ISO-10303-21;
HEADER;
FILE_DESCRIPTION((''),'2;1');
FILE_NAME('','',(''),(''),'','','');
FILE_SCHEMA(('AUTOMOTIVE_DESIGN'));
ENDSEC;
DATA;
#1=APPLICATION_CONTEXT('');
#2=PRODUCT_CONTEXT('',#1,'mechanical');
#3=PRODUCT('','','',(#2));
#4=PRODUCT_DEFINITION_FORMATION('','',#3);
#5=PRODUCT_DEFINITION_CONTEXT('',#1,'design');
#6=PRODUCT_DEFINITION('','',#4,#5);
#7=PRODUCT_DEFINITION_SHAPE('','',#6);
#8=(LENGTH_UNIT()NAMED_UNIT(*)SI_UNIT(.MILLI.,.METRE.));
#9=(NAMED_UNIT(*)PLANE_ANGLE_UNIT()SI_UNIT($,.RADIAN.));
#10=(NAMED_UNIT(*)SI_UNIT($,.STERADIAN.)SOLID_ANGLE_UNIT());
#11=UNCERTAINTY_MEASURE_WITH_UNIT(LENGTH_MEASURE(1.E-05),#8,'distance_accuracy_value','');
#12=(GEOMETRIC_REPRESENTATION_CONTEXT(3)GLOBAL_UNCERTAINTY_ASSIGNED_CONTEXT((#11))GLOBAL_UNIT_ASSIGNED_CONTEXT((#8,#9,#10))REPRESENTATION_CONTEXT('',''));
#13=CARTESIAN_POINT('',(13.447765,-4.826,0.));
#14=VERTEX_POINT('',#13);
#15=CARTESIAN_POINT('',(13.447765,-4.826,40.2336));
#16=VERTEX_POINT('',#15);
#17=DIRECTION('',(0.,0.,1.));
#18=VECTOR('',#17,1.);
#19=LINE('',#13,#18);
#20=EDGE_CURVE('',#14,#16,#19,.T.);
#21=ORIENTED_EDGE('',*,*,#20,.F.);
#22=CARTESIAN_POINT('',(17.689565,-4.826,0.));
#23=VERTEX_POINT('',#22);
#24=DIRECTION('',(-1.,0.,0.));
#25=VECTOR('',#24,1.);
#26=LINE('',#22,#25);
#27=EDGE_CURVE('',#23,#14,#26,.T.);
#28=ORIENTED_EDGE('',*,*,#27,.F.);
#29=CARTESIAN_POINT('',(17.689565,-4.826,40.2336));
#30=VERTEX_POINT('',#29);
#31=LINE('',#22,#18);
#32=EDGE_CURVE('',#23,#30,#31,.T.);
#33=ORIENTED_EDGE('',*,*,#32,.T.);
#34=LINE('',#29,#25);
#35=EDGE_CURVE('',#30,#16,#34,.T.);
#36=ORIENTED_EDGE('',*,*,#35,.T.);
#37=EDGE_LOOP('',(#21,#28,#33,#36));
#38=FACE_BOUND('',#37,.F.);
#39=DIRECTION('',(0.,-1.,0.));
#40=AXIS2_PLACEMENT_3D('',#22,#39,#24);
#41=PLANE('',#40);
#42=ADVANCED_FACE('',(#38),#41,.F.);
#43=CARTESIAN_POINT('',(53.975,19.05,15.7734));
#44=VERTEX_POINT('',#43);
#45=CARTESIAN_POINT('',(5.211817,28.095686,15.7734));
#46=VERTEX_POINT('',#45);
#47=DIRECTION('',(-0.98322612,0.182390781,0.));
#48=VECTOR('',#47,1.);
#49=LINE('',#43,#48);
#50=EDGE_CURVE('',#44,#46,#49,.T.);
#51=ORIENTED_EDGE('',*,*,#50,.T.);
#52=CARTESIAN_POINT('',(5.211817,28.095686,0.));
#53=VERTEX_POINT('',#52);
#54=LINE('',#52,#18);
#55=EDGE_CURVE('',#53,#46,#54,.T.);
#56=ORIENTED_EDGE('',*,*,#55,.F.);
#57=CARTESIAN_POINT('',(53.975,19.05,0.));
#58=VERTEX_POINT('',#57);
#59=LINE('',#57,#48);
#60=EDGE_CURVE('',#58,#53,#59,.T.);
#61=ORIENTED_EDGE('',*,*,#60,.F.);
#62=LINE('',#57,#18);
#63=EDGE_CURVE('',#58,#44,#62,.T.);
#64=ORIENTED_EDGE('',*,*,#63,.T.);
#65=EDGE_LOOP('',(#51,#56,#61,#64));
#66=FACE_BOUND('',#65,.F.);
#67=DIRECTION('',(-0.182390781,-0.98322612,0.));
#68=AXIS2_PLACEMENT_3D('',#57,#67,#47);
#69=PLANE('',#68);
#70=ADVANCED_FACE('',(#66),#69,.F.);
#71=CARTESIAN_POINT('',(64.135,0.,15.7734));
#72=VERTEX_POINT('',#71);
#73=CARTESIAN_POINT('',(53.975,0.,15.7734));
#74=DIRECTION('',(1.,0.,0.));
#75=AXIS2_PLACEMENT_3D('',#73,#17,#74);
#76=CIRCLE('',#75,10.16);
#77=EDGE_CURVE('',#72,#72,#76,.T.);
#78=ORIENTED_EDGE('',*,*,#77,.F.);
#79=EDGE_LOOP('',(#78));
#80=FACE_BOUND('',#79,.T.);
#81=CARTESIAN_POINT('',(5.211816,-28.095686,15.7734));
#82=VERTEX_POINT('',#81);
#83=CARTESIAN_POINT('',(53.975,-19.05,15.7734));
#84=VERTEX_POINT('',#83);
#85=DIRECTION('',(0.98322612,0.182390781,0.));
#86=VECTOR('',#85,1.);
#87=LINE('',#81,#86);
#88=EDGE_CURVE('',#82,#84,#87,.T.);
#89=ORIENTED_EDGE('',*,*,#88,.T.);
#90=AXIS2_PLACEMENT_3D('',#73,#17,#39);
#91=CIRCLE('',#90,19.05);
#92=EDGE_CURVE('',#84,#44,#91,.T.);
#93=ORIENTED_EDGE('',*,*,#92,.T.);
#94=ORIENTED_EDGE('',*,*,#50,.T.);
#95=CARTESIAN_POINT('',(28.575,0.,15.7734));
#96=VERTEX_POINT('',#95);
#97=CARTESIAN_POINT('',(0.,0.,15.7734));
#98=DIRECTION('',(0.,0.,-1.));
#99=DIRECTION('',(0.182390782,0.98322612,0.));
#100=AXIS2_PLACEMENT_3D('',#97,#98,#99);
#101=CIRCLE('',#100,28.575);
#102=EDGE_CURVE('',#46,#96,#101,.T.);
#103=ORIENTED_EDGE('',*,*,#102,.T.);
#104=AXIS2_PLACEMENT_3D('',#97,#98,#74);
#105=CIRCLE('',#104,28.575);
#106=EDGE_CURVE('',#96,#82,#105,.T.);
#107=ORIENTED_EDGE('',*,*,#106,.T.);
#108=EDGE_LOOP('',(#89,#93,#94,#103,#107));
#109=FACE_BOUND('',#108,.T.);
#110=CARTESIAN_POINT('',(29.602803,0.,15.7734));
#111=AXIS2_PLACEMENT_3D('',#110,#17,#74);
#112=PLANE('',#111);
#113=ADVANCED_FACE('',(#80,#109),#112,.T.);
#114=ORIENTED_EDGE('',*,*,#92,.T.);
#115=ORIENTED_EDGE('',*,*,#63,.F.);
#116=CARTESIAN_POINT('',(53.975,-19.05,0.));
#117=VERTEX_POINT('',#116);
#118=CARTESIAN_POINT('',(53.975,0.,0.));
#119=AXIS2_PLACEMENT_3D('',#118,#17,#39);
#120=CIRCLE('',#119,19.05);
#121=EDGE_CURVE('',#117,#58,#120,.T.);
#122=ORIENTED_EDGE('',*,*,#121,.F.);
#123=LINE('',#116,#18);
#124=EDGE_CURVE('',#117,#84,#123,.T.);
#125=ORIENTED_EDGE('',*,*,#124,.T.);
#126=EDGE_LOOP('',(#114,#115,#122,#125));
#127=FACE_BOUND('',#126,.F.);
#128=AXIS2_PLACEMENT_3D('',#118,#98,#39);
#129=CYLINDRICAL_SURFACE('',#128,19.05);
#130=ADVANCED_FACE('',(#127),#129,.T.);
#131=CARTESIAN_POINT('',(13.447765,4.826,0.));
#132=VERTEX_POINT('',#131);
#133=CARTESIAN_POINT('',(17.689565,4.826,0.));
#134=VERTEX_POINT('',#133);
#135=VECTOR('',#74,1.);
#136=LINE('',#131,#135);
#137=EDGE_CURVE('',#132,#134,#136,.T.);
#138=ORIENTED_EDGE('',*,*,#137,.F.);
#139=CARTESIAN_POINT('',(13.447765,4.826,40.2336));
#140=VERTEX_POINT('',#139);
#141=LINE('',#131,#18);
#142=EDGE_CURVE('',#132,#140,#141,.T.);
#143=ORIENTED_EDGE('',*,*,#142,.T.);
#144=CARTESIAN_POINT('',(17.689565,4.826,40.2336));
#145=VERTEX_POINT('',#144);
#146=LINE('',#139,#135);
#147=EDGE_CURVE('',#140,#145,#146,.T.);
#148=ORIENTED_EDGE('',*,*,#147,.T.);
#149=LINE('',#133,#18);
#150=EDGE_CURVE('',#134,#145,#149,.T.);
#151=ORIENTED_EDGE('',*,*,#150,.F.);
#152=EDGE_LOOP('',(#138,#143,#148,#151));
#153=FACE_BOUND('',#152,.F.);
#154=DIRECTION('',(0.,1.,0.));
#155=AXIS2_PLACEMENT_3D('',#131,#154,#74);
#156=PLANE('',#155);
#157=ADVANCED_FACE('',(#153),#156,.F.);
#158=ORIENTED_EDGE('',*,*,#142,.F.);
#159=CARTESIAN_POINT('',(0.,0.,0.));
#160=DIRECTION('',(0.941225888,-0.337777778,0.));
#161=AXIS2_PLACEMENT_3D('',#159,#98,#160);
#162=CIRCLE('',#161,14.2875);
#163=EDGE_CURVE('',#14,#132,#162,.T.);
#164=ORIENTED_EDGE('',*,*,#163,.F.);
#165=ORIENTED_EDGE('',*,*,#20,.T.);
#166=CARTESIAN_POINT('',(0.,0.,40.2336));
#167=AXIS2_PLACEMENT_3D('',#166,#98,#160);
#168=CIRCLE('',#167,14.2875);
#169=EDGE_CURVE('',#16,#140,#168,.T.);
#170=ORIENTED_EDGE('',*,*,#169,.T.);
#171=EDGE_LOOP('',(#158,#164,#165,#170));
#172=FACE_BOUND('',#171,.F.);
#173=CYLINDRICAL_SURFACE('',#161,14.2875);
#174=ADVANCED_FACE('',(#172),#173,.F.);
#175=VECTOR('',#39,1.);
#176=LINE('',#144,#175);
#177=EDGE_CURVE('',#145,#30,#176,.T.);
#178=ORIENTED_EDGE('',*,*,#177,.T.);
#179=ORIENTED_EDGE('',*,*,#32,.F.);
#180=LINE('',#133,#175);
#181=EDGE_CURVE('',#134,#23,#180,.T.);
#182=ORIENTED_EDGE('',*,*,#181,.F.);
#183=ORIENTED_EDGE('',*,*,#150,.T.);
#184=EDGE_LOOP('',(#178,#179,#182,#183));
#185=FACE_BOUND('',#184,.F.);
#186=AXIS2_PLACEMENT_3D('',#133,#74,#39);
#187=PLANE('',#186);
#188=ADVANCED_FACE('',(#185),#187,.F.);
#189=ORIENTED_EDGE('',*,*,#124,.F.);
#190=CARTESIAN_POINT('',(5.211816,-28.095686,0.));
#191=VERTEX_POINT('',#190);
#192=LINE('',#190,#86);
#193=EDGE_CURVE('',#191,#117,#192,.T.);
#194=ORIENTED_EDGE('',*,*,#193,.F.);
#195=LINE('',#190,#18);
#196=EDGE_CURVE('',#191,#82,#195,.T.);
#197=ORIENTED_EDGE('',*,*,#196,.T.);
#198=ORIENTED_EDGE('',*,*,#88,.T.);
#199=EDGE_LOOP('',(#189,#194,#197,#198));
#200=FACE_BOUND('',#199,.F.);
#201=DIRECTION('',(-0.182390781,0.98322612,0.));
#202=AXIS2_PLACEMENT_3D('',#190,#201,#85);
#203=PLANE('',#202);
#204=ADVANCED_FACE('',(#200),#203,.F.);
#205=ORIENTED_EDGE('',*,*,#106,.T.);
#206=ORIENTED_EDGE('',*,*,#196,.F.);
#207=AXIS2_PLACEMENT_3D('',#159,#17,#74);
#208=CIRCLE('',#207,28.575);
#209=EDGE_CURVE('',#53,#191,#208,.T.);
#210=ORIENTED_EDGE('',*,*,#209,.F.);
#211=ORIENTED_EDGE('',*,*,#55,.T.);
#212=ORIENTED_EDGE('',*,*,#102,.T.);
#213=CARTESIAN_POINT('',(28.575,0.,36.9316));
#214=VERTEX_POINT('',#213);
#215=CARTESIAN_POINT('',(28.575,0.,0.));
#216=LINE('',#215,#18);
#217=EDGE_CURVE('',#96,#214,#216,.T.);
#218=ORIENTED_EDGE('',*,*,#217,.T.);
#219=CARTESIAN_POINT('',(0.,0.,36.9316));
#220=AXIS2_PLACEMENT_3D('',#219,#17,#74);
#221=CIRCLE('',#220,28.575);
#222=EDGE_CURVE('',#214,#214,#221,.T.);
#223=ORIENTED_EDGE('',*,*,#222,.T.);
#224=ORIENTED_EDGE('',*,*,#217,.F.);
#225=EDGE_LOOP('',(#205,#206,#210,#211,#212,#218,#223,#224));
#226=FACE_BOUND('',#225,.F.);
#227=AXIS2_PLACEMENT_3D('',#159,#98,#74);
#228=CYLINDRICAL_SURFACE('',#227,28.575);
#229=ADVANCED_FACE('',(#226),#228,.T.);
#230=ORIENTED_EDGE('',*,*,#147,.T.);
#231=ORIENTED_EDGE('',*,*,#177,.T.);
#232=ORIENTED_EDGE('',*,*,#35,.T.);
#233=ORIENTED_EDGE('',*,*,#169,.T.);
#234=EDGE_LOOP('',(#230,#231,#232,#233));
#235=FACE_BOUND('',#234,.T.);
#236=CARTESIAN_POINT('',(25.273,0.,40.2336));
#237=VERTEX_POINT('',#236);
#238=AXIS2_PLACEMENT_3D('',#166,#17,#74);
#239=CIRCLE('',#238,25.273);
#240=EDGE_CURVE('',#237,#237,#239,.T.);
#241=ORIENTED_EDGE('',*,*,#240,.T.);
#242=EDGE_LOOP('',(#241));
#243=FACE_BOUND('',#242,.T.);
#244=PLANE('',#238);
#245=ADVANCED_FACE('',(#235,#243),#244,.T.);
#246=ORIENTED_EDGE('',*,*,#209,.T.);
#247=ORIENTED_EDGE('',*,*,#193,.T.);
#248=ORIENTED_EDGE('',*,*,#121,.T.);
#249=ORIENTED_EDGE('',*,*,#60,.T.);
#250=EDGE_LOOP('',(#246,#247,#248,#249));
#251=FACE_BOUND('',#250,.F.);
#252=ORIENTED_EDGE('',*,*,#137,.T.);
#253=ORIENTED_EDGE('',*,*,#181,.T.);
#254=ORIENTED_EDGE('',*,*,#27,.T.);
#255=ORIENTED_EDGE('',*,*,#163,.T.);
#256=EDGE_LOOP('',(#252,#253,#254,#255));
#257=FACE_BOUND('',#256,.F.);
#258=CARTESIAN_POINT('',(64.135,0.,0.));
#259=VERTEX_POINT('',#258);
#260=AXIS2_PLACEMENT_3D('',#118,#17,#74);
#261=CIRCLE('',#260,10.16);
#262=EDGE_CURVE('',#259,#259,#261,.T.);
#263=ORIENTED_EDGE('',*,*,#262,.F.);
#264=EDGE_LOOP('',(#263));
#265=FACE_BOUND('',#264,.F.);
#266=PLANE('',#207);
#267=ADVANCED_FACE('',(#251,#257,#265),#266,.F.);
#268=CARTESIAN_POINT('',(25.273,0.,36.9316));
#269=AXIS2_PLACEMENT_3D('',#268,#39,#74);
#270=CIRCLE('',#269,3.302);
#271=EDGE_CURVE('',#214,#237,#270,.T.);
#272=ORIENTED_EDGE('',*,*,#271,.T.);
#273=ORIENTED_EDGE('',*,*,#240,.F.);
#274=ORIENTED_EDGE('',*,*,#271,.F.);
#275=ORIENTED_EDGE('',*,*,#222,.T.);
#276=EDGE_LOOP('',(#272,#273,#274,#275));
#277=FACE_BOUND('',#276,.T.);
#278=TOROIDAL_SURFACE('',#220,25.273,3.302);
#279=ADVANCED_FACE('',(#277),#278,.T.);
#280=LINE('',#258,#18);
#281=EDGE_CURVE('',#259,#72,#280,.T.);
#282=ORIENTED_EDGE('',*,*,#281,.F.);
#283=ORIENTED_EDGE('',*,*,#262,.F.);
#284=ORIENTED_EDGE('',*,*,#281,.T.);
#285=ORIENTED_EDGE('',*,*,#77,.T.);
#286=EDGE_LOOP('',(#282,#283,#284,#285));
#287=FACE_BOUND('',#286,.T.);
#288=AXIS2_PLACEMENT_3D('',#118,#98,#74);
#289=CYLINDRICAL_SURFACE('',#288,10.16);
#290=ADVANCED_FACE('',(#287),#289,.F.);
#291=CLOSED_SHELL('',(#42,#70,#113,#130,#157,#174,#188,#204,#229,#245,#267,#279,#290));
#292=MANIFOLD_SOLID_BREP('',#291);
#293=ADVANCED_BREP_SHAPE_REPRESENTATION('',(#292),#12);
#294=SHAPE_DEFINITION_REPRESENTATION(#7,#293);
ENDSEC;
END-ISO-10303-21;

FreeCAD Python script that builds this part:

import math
import FreeCAD as App
import Part
import Sketcher
Q = App.Units.Quantity


def edges_at(feature, points):
    """Names of the edges that pass closest to the given points."""
    edges = feature.Shape.Edges
    near = lambda p: min(range(len(edges)), key=lambda i: edges[i].distToShape(Part.Vertex(*p))[0])
    return sorted({f"Edge{near(p) + 1}" for p in points})

doc = App.newDocument("Part")
body = doc.addObject("PartDesign::Body", "Body")

sketch1 = body.newObject("Sketcher::SketchObject", "Sketch")
sketch1.AttachmentSupport = (doc.getObject("XY_Plane"), [""])
sketch1.MapMode = "FlatFace"
sketch1.addGeometry(Part.ArcOfCircle(Part.Circle(App.Vector(0, 0, 0), App.Vector(0, 0, 1), 29), math.radians(0), math.radians(79)), False)
sketch1.addGeometry(Part.ArcOfCircle(Part.Circle(App.Vector(0, 0, 0), App.Vector(0, 0, 1), 29), math.radians(-79), math.radians(0)), False)
sketch1.addGeometry(Part.LineSegment(App.Vector(5, -28, 0), App.Vector(54, -19, 0)), False)
sketch1.addGeometry(Part.ArcOfCircle(Part.Circle(App.Vector(54, 0, 0), App.Vector(0, 0, 1), 19), math.radians(-90), math.radians(90)), False)
sketch1.addGeometry(Part.LineSegment(App.Vector(54, 19, 0), App.Vector(5, 28, 0)), False)
sketch1.addGeometry(Part.Circle(App.Vector(54, 0, 0), App.Vector(0, 0, 1), 10), False)
sketch1.addConstraint(Sketcher.Constraint("Tangent", 0, 1, 1, 2))
sketch1.addConstraint(Sketcher.Constraint("Tangent", 1, 1, 2, 1))
sketch1.addConstraint(Sketcher.Constraint("Coincident", 2, 2, 3, 1))
sketch1.addConstraint(Sketcher.Constraint("Coincident", 3, 2, 4, 1))
sketch1.addConstraint(Sketcher.Constraint("Tangent", 4, 2, 0, 2))
sketch1.addConstraint(Sketcher.Constraint("Coincident", 0, 3, -1, 1))
sketch1.addConstraint(Sketcher.Constraint("Coincident", 5, 3, 3, 3))
sketch1.addConstraint(Sketcher.Constraint("Equal", 0, 1))
sketch1.addConstraint(Sketcher.Constraint("Symmetric", 2, 2, 3, 2, -1))
sketch1.addConstraint(Sketcher.Constraint("PointOnObject", 0, 1, -1))
sketch1.addConstraint(Sketcher.Constraint("Vertical", 5, 3, 2, 2))
sketch1.addConstraint(Sketcher.Constraint("Diameter", 5, Q("0.8 in")))
sketch1.addConstraint(Sketcher.Constraint("Radius", 3, Q("0.75 in")))
sketch1.addConstraint(Sketcher.Constraint("Radius", 0, Q("1.125 in")))
sketch1.addConstraint(Sketcher.Constraint("DistanceX", 0, 1, 3, 3, Q("1 in")))
pad1 = body.newObject("PartDesign::Pad", "Pad")
pad1.Profile = sketch1
pad1.Length = Q("0.621 in")

sketch2 = body.newObject("Sketcher::SketchObject", "Sketch001")
sketch2.AttachmentSupport = (doc.getObject("XY_Plane"), [""])
sketch2.MapMode = "FlatFace"
sketch2.addGeometry(Part.Circle(App.Vector(0, 0, 0), App.Vector(0, 0, 1), 28.6), False)
sketch2.addGeometry(Part.LineSegment(App.Vector(17.7, 4.8, 0), App.Vector(17.7, -4.8, 0)), False)
sketch2.addGeometry(Part.LineSegment(App.Vector(17.7, -4.8, 0), App.Vector(13.4, -4.8, 0)), False)
sketch2.addGeometry(Part.ArcOfCircle(Part.Circle(App.Vector(0, 0, 0), App.Vector(0, 0, 1), 14.3), math.radians(20), math.radians(340)), False)
sketch2.addGeometry(Part.LineSegment(App.Vector(13.4, 4.8, 0), App.Vector(17.7, 4.8, 0)), False)
sketch2.addConstraint(Sketcher.Constraint("Coincident", 1, 2, 2, 1))
sketch2.addConstraint(Sketcher.Constraint("Coincident", 2, 2, 3, 2))
sketch2.addConstraint(Sketcher.Constraint("Coincident", 3, 1, 4, 1))
sketch2.addConstraint(Sketcher.Constraint("Coincident", 4, 2, 1, 1))
sketch2.addConstraint(Sketcher.Constraint("Vertical", 1))
sketch2.addConstraint(Sketcher.Constraint("Horizontal", 2))
sketch2.addConstraint(Sketcher.Constraint("Horizontal", 4))
sketch2.addConstraint(Sketcher.Constraint("Coincident", 0, 3, -1, 1))
sketch2.addConstraint(Sketcher.Constraint("Coincident", 3, 3, -1, 1))
sketch2.addConstraint(Sketcher.Constraint("Vertical", 2, 2, 3, 1))
sketch2.addConstraint(Sketcher.Constraint("Diameter", 0, Q("2.25 in")))
sketch2.addConstraint(Sketcher.Constraint("Radius", 3, Q("0.5625 in")))
sketch2.addConstraint(Sketcher.Constraint("DistanceY", 1, 2, 1, 1, Q("0.38 in")))
sketch2.addConstraint(Sketcher.Constraint("DistanceX", 2, 2, 2, 1, Q("0.167 in")))
pad2 = body.newObject("PartDesign::Pad", "Pad001")
pad2.Profile = sketch2
pad2.Length = Q("1.584 in")
doc.recompute()

fillet = body.newObject("PartDesign::Fillet", "Fillet")
fillet.Base = (pad2, edges_at(pad2, [(-28.575, 0, 40.234)]))
fillet.Radius = Q("0.13 in")

doc.recompute()
